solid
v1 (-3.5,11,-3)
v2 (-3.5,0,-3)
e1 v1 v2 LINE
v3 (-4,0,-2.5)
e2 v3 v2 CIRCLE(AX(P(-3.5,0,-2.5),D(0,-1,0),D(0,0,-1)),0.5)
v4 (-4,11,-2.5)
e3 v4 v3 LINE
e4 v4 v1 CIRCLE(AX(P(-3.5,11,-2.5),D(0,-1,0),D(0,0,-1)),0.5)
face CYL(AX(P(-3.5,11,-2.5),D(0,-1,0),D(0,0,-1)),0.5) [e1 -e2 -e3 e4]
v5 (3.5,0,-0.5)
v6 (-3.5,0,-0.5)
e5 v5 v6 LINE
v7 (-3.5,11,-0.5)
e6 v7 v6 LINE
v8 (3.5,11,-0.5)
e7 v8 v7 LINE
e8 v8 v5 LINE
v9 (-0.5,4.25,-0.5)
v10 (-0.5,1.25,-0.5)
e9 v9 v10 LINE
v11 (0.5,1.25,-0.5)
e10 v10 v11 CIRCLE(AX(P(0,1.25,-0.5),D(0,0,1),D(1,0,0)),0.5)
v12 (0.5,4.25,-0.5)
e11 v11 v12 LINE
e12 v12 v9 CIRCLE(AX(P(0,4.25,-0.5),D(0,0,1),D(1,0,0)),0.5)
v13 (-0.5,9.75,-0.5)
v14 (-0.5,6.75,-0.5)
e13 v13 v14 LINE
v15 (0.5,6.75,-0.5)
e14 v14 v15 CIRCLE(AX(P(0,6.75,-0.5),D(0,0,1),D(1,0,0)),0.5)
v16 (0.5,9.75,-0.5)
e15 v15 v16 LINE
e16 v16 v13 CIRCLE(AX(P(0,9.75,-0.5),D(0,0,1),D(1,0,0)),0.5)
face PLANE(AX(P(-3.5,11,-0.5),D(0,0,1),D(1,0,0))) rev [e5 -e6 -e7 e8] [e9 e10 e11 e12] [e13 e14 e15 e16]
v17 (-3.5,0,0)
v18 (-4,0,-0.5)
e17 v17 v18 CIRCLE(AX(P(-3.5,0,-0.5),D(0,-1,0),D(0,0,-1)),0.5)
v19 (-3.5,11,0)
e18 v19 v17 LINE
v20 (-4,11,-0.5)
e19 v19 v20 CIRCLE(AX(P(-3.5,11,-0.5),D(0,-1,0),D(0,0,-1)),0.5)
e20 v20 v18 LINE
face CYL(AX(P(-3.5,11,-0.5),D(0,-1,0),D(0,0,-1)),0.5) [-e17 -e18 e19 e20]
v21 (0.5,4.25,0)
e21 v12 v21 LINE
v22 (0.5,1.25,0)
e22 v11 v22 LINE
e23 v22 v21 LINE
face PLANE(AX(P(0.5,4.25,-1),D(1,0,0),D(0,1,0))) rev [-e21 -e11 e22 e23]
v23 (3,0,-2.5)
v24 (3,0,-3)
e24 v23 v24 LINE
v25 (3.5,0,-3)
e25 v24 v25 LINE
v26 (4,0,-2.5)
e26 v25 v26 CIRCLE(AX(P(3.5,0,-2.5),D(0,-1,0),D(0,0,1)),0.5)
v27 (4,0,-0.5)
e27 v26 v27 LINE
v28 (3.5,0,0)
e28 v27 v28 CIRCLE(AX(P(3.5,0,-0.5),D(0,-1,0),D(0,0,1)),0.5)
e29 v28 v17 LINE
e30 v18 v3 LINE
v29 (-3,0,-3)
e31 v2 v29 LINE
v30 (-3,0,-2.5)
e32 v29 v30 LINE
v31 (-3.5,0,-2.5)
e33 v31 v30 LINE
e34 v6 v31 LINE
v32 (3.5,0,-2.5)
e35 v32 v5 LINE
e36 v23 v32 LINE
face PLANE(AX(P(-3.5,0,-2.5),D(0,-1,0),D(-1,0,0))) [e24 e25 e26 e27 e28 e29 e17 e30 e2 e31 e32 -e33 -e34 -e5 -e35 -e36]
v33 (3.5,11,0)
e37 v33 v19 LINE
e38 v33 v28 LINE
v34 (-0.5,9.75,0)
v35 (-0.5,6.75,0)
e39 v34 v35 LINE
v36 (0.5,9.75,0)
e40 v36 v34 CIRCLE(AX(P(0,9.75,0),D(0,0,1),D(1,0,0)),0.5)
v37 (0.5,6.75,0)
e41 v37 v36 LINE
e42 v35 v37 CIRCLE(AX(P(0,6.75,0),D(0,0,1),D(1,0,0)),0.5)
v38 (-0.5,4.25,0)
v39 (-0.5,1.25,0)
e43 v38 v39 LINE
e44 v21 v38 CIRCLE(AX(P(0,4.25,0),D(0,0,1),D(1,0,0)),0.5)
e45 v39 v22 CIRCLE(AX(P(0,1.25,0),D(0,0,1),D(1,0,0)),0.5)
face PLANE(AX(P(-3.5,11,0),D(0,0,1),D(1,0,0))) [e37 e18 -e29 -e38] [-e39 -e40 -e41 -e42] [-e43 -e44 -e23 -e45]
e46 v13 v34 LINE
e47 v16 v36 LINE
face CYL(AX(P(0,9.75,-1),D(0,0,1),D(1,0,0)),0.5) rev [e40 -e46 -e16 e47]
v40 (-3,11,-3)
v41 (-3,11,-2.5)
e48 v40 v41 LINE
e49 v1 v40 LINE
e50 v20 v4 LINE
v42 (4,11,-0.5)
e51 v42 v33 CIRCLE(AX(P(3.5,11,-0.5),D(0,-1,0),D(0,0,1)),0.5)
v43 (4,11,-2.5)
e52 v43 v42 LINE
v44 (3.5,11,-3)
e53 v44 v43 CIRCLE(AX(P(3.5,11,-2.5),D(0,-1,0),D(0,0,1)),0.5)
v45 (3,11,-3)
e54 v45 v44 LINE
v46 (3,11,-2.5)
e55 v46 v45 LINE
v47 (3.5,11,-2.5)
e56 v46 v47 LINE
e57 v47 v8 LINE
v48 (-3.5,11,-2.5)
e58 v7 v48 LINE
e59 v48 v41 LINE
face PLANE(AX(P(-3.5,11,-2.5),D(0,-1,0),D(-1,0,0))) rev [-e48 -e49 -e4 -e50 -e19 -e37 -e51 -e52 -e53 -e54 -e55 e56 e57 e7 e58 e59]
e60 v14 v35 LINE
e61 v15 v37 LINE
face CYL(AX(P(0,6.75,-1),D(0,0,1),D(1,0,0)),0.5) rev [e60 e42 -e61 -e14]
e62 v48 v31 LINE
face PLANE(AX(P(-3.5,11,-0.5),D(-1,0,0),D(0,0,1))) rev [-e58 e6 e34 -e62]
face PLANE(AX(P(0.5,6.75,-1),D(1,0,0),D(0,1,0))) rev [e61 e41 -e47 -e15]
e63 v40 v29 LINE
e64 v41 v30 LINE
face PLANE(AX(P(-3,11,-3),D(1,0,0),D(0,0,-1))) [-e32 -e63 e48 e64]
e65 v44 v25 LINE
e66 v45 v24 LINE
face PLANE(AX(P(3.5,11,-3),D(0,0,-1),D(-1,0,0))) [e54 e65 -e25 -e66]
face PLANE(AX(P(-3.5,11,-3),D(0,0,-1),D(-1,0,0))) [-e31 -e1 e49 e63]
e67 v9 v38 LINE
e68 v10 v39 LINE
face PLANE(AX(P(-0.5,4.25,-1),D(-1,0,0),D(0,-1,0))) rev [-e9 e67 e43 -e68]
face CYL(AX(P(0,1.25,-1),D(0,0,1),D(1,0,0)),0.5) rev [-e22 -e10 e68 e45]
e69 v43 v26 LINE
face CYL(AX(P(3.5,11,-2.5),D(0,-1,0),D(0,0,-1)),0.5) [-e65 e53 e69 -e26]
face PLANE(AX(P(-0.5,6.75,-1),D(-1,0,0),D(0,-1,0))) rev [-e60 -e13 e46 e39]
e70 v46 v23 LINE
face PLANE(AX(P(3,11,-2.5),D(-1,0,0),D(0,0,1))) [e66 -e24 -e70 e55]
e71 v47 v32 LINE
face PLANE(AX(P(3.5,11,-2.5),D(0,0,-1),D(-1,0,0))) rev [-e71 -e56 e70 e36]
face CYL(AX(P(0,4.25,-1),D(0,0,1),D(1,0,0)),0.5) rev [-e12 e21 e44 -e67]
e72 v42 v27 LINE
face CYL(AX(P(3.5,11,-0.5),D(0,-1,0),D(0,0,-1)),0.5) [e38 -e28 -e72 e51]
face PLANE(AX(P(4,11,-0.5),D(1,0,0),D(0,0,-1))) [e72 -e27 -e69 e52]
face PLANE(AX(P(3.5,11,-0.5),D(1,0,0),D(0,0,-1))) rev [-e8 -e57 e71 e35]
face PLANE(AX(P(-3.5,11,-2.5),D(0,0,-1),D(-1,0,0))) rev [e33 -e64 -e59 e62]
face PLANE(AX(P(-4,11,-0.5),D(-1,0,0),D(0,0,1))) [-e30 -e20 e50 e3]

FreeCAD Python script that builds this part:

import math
import FreeCAD as App
import Part
import Sketcher
Q = App.Units.Quantity

doc = App.newDocument("Part")
body = doc.addObject("PartDesign::Body", "Body")

# Sketch on XZ plane
sketch1 = body.newObject("Sketcher::SketchObject", "Sketch")
sketch1.AttachmentSupport = (doc.getObject("XZ_Plane"), [""])
sketch1.MapMode = "FlatFace"
sketch1.addGeometry(Part.LineSegment(App.Vector(-3, -3, 0), App.Vector(-3.5, -3, 0)), False)
sketch1.addGeometry(Part.ArcOfCircle(Part.Circle(App.Vector(-3.5, -2.5, 0), App.Vector(0, 0, 1), 0.5), math.radians(180), math.radians(270)), False)
sketch1.addGeometry(Part.LineSegment(App.Vector(-4, -2.5, 0), App.Vector(-4, -0.5, 0)), False)
sketch1.addGeometry(Part.ArcOfCircle(Part.Circle(App.Vector(-3.5, -0.5, 0), App.Vector(0, 0, 1), 0.5), math.radians(90), math.radians(180)), False)
sketch1.addGeometry(Part.LineSegment(App.Vector(-3.5, 0, 0), App.Vector(3.5, 0, 0)), False)
sketch1.addGeometry(Part.ArcOfCircle(Part.Circle(App.Vector(3.5, -0.5, 0), App.Vector(0, 0, 1), 0.5), math.radians(0), math.radians(90)), False)
sketch1.addGeometry(Part.LineSegment(App.Vector(4, -0.5, 0), App.Vector(4, -2.5, 0)), False)
sketch1.addGeometry(Part.ArcOfCircle(Part.Circle(App.Vector(3.5, -2.5, 0), App.Vector(0, 0, 1), 0.5), math.radians(-90), math.radians(0)), False)
sketch1.addGeometry(Part.LineSegment(App.Vector(3.5, -3, 0), App.Vector(3, -3, 0)), False)
sketch1.addGeometry(Part.LineSegment(App.Vector(3, -3, 0), App.Vector(3, -2.5, 0)), False)
sketch1.addGeometry(Part.LineSegment(App.Vector(3, -2.5, 0), App.Vector(3.5, -2.5, 0)), False)
sketch1.addGeometry(Part.LineSegment(App.Vector(3.5, -2.5, 0), App.Vector(3.5, -0.5, 0)), False)
sketch1.addGeometry(Part.LineSegment(App.Vector(3.5, -0.5, 0), App.Vector(-3.5, -0.5, 0)), False)
sketch1.addGeometry(Part.LineSegment(App.Vector(-3.5, -0.5, 0), App.Vector(-3.5, -2.5, 0)), False)
sketch1.addGeometry(Part.LineSegment(App.Vector(-3.5, -2.5, 0), App.Vector(-3, -2.5, 0)), False)
sketch1.addGeometry(Part.LineSegment(App.Vector(-3, -2.5, 0), App.Vector(-3, -3, 0)), False)
sketch1.addConstraint(Sketcher.Constraint("Tangent", 0, 2, 1, 2))
sketch1.addConstraint(Sketcher.Constraint("Tangent", 1, 1, 2, 1))
sketch1.addConstraint(Sketcher.Constraint("Tangent", 2, 2, 3, 2))
sketch1.addConstraint(Sketcher.Constraint("Tangent", 3, 1, 4, 1))
sketch1.addConstraint(Sketcher.Constraint("Tangent", 4, 2, 5, 2))
sketch1.addConstraint(Sketcher.Constraint("Tangent", 5, 1, 6, 1))
sketch1.addConstraint(Sketcher.Constraint("Tangent", 6, 2, 7, 2))
sketch1.addConstraint(Sketcher.Constraint("Tangent", 7, 1, 8, 1))
sketch1.addConstraint(Sketcher.Constraint("Coincident", 8, 2, 9, 1))
sketch1.addConstraint(Sketcher.Constraint("Coincident", 9, 2, 10, 1))
sketch1.addConstraint(Sketcher.Constraint("Coincident", 10, 2, 11, 1))
sketch1.addConstraint(Sketcher.Constraint("Coincident", 11, 2, 12, 1))
sketch1.addConstraint(Sketcher.Constraint("Coincident", 12, 2, 13, 1))
sketch1.addConstraint(Sketcher.Constraint("Coincident", 13, 2, 14, 1))
sketch1.addConstraint(Sketcher.Constraint("Coincident", 14, 2, 15, 1))
sketch1.addConstraint(Sketcher.Constraint("Coincident", 15, 2, 0, 1))
sketch1.addConstraint(Sketcher.Constraint("Horizontal", 0))
sketch1.addConstraint(Sketcher.Constraint("Vertical", 2))
sketch1.addConstraint(Sketcher.Constraint("Horizontal", 4))
sketch1.addConstraint(Sketcher.Constraint("Vertical", 6))
sketch1.addConstraint(Sketcher.Constraint("Horizontal", 8))
sketch1.addConstraint(Sketcher.Constraint("Vertical", 9))
sketch1.addConstraint(Sketcher.Constraint("Horizontal", 10))
sketch1.addConstraint(Sketcher.Constraint("Vertical", 11))
sketch1.addConstraint(Sketcher.Constraint("Horizontal", 12))
sketch1.addConstraint(Sketcher.Constraint("Vertical", 13))
sketch1.addConstraint(Sketcher.Constraint("Horizontal", 14))
sketch1.addConstraint(Sketcher.Constraint("Vertical", 15))
sketch1.addConstraint(Sketcher.Constraint("Coincident", 10, 2, 7, 3))
sketch1.addConstraint(Sketcher.Constraint("Coincident", 11, 2, 5, 3))
sketch1.addConstraint(Sketcher.Constraint("Coincident", 12, 2, 3, 3))
sketch1.addConstraint(Sketcher.Constraint("Coincident", 13, 2, 1, 3))
sketch1.addConstraint(Sketcher.Constraint("Symmetric", 3, 1, 4, 2, -1, 1))
sketch1.addConstraint(Sketcher.Constraint("Symmetric", 9, 2, 14, 2, -2))
sketch1.addConstraint(Sketcher.Constraint("Equal", 14, 9))
sketch1.addConstraint(Sketcher.Constraint("Radius", 1, Q("0.5 mm")))
sketch1.addConstraint(Sketcher.Constraint("DistanceX", 4, 1, 4, 2, Q("7 mm")))
sketch1.addConstraint(Sketcher.Constraint("DistanceY", 2, 1, 2, 2, Q("2 mm")))
pad1 = body.newObject("PartDesign::Pad", "Pad")
pad1.Profile = sketch1
pad1.Length = 11
pad1.Reversed = True

# Sketch on XY plane
sketch2 = body.newObject("Sketcher::SketchObject", "Sketch001")
sketch2.AttachmentSupport = (doc.getObject("XY_Plane"), [""])
sketch2.MapMode = "FlatFace"
sketch2.addGeometry(Part.LineSegment(App.Vector(-0.5, 9.8, 0), App.Vector(-0.5, 6.8, 0)), False)
sketch2.addGeometry(Part.ArcOfCircle(Part.Circle(App.Vector(0, 6.8, 0), App.Vector(0, 0, 1), 0.5), math.radians(180), math.radians(360)), False)
sketch2.addGeometry(Part.LineSegment(App.Vector(0.5, 6.8, 0), App.Vector(0.5, 9.8, 0)), False)
sketch2.addGeometry(Part.ArcOfCircle(Part.Circle(App.Vector(0, 9.8, 0), App.Vector(0, 0, 1), 0.5), math.radians(0), math.radians(180)), False)
sketch2.addGeometry(Part.LineSegment(App.Vector(0.5, 1.2, 0), App.Vector(0.5, 4.2, 0)), False)
sketch2.addGeometry(Part.ArcOfCircle(Part.Circle(App.Vector(0, 4.2, 0), App.Vector(0, 0, 1), 0.5), math.radians(0), math.radians(180)), False)
sketch2.addGeometry(Part.LineSegment(App.Vector(-0.5, 4.2, 0), App.Vector(-0.5, 1.2, 0)), False)
sketch2.addGeometry(Part.ArcOfCircle(Part.Circle(App.Vector(0, 1.2, 0), App.Vector(0, 0, 1), 0.5), math.radians(180), math.radians(360)), False)
sketch2.addConstraint(Sketcher.Constraint("Tangent", 0, 2, 1, 1))
sketch2.addConstraint(Sketcher.Constraint("Tangent", 1, 2, 2, 1))
sketch2.addConstraint(Sketcher.Constraint("Tangent", 2, 2, 3, 1))
sketch2.addConstraint(Sketcher.Constraint("Tangent", 3, 2, 0, 1))
sketch2.addConstraint(Sketcher.Constraint("Tangent", 4, 2, 5, 1))
sketch2.addConstraint(Sketcher.Constraint("Tangent", 5, 2, 6, 1))
sketch2.addConstraint(Sketcher.Constraint("Tangent", 6, 2, 7, 1))
sketch2.addConstraint(Sketcher.Constraint("Tangent", 7, 2, 4, 1))
sketch2.addConstraint(Sketcher.Constraint("Vertical", 0))
sketch2.addConstraint(Sketcher.Constraint("Vertical", 2))
sketch2.addConstraint(Sketcher.Constraint("Vertical", 4))
sketch2.addConstraint(Sketcher.Constraint("Vertical", 6))
sketch2.addConstraint(Sketcher.Constraint("Equal", 3, 5))
sketch2.addConstraint(Sketcher.Constraint("PointOnObject", 1, 3, -2))
sketch2.addConstraint(Sketcher.Constraint("PointOnObject", 5, 3, -2))
sketch2.addConstraint(Sketcher.Constraint("Equal", 2, 4))
sketch2.addConstraint(Sketcher.Constraint("Radius", 1, Q("0.5 mm")))
sketch2.addConstraint(Sketcher.Constraint("DistanceY", 0, 2, 0, 1, Q("3 mm")))
sketch2.addConstraint(Sketcher.Constraint("DistanceY", 5, 3, 1, 3, Q("2.5 mm")))
sketch2.addConstraint(Sketcher.Constraint("DistanceY", -1, 1, 1, 3, Q("6.75 mm")))
pocket1 = body.newObject("PartDesign::Pocket", "Pocket")
pocket1.Profile = sketch2
pocket1.Length = 1

doc.recompute()
